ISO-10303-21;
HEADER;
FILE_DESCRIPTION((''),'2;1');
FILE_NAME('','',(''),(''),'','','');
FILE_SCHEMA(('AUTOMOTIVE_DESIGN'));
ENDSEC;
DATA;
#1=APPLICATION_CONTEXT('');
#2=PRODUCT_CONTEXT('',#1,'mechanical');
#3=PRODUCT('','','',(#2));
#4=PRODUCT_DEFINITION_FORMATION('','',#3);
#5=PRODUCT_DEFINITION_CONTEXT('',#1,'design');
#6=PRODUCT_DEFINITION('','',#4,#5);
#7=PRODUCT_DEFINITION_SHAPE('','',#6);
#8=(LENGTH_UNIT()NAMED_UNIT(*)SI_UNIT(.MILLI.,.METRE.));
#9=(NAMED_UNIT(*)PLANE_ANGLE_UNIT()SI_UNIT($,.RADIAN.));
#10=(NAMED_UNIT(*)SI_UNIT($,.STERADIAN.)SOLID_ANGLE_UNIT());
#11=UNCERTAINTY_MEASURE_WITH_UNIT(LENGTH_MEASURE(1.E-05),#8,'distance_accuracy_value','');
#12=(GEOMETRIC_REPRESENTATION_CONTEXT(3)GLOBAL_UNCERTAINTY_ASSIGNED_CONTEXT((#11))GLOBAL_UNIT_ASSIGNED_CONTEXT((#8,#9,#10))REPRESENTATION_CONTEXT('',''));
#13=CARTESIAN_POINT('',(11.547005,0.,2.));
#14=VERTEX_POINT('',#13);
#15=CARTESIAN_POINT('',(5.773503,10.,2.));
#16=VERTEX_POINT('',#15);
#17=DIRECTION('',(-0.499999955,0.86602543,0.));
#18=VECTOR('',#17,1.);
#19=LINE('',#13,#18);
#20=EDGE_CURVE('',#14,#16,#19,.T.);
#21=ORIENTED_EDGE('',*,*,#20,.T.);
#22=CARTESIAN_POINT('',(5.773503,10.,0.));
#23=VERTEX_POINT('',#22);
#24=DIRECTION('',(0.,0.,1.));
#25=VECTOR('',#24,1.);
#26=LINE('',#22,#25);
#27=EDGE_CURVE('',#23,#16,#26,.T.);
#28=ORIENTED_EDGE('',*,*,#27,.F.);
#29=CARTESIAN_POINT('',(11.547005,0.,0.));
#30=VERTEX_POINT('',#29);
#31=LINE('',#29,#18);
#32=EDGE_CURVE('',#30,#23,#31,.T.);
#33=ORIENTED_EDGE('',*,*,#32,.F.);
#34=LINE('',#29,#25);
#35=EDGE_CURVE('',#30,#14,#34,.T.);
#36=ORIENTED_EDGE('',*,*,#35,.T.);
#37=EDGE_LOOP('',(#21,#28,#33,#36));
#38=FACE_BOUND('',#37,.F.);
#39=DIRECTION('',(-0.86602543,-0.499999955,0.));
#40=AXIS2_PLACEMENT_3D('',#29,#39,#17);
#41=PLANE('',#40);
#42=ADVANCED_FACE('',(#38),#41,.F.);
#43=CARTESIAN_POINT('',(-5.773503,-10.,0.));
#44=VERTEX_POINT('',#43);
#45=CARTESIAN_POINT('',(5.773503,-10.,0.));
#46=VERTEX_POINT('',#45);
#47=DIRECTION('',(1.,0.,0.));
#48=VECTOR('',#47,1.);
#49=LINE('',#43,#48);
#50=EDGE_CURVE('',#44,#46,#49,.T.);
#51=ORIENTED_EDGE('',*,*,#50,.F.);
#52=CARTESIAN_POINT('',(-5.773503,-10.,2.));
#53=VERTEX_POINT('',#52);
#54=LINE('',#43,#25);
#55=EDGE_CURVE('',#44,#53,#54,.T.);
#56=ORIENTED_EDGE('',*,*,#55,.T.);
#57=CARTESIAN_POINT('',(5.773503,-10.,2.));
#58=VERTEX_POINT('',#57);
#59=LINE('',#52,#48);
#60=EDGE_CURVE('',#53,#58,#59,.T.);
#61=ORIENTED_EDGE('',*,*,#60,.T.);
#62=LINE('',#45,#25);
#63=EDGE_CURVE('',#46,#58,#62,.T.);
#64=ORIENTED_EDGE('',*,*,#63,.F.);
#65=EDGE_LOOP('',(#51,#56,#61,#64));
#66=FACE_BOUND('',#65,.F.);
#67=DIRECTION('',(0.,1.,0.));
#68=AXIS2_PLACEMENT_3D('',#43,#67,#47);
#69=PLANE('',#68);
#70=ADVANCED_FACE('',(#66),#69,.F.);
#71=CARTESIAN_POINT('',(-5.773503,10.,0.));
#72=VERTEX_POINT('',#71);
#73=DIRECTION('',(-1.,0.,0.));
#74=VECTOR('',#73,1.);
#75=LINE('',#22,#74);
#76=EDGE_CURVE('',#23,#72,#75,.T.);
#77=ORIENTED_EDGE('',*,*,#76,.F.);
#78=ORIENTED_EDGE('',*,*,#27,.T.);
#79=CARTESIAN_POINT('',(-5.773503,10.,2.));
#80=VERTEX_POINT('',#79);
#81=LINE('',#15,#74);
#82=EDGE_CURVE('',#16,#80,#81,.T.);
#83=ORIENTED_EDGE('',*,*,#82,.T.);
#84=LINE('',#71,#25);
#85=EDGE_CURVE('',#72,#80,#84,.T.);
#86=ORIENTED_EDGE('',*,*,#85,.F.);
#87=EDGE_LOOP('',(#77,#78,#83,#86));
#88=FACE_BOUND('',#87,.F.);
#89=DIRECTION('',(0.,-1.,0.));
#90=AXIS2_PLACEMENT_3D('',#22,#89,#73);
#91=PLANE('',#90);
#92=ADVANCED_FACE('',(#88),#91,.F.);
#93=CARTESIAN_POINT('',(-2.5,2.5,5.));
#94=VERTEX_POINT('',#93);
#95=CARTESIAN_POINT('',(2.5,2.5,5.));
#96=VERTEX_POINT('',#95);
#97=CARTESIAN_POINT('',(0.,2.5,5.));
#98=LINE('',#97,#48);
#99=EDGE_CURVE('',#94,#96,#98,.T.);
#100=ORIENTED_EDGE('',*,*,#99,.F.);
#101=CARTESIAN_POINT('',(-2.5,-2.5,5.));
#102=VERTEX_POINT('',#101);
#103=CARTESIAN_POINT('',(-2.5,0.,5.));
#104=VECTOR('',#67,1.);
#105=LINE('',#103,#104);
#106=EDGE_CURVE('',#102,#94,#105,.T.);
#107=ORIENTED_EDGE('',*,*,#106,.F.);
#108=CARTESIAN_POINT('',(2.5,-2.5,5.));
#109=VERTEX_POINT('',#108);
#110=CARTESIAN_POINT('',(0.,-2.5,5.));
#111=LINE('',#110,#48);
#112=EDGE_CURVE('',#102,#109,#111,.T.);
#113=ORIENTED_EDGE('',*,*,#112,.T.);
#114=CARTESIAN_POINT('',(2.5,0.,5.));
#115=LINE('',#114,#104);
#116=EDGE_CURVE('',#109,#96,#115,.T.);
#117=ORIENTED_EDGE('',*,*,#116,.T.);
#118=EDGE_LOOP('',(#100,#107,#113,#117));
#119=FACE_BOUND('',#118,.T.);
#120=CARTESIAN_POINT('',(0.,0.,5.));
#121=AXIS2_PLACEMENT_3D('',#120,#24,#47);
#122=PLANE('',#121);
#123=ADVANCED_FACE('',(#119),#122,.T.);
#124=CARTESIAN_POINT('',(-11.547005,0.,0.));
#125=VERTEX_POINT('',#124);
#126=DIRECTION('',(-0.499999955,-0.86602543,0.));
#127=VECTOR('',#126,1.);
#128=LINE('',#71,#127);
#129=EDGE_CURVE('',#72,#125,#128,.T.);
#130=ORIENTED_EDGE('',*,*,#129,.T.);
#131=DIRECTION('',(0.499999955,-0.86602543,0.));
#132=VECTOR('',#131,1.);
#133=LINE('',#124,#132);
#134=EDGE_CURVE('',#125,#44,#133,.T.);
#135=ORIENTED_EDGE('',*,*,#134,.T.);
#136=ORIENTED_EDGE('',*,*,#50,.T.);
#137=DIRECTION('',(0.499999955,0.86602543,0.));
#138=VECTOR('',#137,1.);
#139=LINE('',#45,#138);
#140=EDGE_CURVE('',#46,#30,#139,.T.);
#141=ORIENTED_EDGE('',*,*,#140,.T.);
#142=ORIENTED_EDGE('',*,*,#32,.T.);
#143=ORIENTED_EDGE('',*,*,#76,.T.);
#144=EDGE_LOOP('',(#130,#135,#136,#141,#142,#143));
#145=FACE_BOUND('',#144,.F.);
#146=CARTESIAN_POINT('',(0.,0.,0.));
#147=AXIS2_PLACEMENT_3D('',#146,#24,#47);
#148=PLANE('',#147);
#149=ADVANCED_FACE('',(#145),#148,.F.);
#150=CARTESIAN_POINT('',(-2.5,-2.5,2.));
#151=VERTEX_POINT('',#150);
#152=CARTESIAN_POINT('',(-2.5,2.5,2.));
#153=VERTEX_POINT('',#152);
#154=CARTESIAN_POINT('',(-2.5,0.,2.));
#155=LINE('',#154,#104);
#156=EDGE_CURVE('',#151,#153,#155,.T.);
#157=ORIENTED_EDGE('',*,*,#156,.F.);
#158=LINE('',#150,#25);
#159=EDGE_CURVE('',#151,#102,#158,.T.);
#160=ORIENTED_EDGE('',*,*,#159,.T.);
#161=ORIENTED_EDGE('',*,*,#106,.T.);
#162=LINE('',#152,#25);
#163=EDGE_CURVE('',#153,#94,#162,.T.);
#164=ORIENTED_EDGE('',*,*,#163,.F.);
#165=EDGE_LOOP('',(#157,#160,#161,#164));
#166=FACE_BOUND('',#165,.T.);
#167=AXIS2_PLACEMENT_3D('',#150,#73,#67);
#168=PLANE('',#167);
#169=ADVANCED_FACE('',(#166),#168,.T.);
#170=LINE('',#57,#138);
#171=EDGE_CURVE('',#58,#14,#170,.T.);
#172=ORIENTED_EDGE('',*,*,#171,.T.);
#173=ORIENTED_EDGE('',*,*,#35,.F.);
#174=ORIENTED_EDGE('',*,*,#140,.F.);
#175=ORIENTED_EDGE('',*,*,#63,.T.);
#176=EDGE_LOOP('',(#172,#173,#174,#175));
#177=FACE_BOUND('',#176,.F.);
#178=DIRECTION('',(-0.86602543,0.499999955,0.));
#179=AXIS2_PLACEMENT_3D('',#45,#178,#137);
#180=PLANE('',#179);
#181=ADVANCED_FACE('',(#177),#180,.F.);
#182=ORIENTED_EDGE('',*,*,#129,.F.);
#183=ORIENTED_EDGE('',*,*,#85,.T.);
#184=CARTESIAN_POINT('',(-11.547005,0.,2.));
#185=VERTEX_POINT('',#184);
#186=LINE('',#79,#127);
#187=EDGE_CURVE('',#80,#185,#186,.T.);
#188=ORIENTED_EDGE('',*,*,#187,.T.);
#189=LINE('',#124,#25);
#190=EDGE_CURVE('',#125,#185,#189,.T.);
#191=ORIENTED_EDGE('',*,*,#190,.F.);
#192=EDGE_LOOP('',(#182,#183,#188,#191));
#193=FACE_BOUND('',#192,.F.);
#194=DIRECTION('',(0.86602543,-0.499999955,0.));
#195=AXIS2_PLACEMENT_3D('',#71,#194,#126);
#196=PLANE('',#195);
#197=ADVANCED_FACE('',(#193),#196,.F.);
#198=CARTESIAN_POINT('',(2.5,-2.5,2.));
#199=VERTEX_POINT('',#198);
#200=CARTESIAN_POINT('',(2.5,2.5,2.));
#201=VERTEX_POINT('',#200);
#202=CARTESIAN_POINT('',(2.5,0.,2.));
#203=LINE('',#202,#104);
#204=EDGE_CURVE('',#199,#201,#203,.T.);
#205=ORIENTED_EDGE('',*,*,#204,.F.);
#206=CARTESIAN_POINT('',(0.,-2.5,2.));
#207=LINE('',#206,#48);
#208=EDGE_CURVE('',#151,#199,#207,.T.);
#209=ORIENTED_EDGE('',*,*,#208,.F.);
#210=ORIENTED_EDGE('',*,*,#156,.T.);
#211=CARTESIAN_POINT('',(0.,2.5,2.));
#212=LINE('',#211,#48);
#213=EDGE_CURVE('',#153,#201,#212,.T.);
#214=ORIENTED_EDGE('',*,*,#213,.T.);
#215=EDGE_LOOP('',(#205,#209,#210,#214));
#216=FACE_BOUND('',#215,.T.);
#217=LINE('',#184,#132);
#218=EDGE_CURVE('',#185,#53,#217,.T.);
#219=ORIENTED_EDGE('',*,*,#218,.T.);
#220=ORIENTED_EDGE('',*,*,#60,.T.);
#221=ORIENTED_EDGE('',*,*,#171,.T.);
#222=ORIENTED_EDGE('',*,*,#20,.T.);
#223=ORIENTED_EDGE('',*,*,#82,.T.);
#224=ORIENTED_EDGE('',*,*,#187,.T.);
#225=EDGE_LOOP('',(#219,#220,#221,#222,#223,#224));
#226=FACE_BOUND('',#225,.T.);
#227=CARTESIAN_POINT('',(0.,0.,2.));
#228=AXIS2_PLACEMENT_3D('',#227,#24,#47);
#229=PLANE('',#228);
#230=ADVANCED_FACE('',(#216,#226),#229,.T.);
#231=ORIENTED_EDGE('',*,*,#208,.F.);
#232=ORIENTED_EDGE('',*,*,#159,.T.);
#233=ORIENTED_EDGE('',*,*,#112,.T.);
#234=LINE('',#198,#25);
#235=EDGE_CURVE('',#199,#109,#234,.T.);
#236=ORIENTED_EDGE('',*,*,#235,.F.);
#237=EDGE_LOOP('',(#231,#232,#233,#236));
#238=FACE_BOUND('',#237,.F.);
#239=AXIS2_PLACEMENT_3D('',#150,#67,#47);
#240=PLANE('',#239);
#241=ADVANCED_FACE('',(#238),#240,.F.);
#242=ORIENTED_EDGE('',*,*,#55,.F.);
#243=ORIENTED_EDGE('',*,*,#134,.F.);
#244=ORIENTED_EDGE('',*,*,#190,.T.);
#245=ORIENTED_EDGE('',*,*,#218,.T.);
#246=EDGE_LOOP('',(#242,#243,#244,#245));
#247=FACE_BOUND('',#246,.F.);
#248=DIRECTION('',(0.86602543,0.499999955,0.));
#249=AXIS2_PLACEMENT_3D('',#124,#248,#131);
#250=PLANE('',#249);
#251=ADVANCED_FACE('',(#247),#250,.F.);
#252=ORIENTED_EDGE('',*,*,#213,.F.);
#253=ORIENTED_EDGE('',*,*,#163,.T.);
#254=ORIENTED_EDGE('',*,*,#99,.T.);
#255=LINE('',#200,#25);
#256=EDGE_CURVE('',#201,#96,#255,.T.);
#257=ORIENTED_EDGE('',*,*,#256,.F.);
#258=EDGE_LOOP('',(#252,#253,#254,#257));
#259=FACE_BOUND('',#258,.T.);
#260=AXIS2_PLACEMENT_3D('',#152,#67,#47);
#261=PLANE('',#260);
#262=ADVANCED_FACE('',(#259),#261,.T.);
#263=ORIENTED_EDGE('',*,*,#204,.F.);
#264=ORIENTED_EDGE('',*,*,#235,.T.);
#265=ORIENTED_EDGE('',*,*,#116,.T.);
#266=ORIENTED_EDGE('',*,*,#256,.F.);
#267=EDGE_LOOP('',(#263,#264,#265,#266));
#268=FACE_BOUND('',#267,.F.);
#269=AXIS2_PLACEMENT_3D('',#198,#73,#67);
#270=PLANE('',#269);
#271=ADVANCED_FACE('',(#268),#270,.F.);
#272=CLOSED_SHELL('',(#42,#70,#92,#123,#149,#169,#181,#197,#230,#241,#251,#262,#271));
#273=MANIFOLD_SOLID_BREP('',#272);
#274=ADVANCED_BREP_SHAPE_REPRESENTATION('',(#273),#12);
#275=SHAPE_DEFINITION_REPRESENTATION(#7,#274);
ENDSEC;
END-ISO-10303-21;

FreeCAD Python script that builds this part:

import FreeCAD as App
import Part
import Sketcher
Q = App.Units.Quantity


def add_polygon(sketch, points):
    """Adds a closed chain of lines whose ends are joined by coincident constraints."""
    first, n = sketch.GeometryCount, len(points)
    for a, b in zip(points, points[1:] + points[:1]):
        sketch.addGeometry(Part.LineSegment(App.Vector(*a, 0), App.Vector(*b, 0)), False)
    for i in range(n):
        sketch.addConstraint(Sketcher.Constraint("Coincident", first + i, 2, first + (i + 1) % n, 1))

doc = App.newDocument("Part")
body = doc.addObject("PartDesign::Body", "Body")

sketch1 = body.newObject("Sketcher::SketchObject", "Sketch")
sketch1.AttachmentSupport = (doc.getObject("XY_Plane"), [""])
sketch1.MapMode = "FlatFace"
add_polygon(sketch1, [(5.773503, 10), (-5.773503, 10), (-11.547005, 0), (-5.773503, -10), (5.773503, -10), (11.547005, 0)])
sketch1.addConstraint([
    Sketcher.Constraint("Horizontal", 0),
    Sketcher.Constraint("Horizontal", 3),
    Sketcher.Constraint("Symmetric", 0, 2, 3, 2, -1, 1),
    Sketcher.Constraint("Symmetric", 1, 2, 4, 2, -1, 1),
    Sketcher.Constraint("PointOnObject", 1, 2, -1),
    Sketcher.Constraint("Parallel", 2, 5),
    Sketcher.Constraint("Vertical", 0, 2, 2, 2),
    Sketcher.Constraint("Angle", 1, Q("-119.999997 deg")),
    Sketcher.Constraint("DistanceY", -1, 1, 0, 2, 10.0),
    Sketcher.Constraint("DistanceX", 0, 2, 0, 1, 11.547006),
])
pad1 = body.newObject("PartDesign::Pad", "Pad")
pad1.Profile = sketch1
pad1.Length = 2

sketch2 = body.newObject("Sketcher::SketchObject", "Sketch001")
sketch2.AttachmentSupport = (doc.getObject("XY_Plane"), [""])
sketch2.MapMode = "FlatFace"
sketch2.AttachmentOffset = App.Placement(App.Vector(0, 0, 2), App.Rotation())
add_polygon(sketch2, [(-2.5, 2.5), (-2.5, -2.5), (2.5, -2.5), (2.5, 2.5)])
sketch2.addConstraint([
    Sketcher.Constraint("Vertical", 0),
    Sketcher.Constraint("Horizontal", 1),
    Sketcher.Constraint("Vertical", 2),
    Sketcher.Constraint("Horizontal", 3),
    Sketcher.Constraint("Symmetric", 0, 2, 2, 2, -1, 1),
    Sketcher.Constraint("Equal", 3, 0),
    Sketcher.Constraint("DistanceX", 1, 1, 1, 2, 5.0),
])
pad2 = body.newObject("PartDesign::Pad", "Pad001")
pad2.Profile = sketch2
pad2.Length = 3

doc.recompute()
